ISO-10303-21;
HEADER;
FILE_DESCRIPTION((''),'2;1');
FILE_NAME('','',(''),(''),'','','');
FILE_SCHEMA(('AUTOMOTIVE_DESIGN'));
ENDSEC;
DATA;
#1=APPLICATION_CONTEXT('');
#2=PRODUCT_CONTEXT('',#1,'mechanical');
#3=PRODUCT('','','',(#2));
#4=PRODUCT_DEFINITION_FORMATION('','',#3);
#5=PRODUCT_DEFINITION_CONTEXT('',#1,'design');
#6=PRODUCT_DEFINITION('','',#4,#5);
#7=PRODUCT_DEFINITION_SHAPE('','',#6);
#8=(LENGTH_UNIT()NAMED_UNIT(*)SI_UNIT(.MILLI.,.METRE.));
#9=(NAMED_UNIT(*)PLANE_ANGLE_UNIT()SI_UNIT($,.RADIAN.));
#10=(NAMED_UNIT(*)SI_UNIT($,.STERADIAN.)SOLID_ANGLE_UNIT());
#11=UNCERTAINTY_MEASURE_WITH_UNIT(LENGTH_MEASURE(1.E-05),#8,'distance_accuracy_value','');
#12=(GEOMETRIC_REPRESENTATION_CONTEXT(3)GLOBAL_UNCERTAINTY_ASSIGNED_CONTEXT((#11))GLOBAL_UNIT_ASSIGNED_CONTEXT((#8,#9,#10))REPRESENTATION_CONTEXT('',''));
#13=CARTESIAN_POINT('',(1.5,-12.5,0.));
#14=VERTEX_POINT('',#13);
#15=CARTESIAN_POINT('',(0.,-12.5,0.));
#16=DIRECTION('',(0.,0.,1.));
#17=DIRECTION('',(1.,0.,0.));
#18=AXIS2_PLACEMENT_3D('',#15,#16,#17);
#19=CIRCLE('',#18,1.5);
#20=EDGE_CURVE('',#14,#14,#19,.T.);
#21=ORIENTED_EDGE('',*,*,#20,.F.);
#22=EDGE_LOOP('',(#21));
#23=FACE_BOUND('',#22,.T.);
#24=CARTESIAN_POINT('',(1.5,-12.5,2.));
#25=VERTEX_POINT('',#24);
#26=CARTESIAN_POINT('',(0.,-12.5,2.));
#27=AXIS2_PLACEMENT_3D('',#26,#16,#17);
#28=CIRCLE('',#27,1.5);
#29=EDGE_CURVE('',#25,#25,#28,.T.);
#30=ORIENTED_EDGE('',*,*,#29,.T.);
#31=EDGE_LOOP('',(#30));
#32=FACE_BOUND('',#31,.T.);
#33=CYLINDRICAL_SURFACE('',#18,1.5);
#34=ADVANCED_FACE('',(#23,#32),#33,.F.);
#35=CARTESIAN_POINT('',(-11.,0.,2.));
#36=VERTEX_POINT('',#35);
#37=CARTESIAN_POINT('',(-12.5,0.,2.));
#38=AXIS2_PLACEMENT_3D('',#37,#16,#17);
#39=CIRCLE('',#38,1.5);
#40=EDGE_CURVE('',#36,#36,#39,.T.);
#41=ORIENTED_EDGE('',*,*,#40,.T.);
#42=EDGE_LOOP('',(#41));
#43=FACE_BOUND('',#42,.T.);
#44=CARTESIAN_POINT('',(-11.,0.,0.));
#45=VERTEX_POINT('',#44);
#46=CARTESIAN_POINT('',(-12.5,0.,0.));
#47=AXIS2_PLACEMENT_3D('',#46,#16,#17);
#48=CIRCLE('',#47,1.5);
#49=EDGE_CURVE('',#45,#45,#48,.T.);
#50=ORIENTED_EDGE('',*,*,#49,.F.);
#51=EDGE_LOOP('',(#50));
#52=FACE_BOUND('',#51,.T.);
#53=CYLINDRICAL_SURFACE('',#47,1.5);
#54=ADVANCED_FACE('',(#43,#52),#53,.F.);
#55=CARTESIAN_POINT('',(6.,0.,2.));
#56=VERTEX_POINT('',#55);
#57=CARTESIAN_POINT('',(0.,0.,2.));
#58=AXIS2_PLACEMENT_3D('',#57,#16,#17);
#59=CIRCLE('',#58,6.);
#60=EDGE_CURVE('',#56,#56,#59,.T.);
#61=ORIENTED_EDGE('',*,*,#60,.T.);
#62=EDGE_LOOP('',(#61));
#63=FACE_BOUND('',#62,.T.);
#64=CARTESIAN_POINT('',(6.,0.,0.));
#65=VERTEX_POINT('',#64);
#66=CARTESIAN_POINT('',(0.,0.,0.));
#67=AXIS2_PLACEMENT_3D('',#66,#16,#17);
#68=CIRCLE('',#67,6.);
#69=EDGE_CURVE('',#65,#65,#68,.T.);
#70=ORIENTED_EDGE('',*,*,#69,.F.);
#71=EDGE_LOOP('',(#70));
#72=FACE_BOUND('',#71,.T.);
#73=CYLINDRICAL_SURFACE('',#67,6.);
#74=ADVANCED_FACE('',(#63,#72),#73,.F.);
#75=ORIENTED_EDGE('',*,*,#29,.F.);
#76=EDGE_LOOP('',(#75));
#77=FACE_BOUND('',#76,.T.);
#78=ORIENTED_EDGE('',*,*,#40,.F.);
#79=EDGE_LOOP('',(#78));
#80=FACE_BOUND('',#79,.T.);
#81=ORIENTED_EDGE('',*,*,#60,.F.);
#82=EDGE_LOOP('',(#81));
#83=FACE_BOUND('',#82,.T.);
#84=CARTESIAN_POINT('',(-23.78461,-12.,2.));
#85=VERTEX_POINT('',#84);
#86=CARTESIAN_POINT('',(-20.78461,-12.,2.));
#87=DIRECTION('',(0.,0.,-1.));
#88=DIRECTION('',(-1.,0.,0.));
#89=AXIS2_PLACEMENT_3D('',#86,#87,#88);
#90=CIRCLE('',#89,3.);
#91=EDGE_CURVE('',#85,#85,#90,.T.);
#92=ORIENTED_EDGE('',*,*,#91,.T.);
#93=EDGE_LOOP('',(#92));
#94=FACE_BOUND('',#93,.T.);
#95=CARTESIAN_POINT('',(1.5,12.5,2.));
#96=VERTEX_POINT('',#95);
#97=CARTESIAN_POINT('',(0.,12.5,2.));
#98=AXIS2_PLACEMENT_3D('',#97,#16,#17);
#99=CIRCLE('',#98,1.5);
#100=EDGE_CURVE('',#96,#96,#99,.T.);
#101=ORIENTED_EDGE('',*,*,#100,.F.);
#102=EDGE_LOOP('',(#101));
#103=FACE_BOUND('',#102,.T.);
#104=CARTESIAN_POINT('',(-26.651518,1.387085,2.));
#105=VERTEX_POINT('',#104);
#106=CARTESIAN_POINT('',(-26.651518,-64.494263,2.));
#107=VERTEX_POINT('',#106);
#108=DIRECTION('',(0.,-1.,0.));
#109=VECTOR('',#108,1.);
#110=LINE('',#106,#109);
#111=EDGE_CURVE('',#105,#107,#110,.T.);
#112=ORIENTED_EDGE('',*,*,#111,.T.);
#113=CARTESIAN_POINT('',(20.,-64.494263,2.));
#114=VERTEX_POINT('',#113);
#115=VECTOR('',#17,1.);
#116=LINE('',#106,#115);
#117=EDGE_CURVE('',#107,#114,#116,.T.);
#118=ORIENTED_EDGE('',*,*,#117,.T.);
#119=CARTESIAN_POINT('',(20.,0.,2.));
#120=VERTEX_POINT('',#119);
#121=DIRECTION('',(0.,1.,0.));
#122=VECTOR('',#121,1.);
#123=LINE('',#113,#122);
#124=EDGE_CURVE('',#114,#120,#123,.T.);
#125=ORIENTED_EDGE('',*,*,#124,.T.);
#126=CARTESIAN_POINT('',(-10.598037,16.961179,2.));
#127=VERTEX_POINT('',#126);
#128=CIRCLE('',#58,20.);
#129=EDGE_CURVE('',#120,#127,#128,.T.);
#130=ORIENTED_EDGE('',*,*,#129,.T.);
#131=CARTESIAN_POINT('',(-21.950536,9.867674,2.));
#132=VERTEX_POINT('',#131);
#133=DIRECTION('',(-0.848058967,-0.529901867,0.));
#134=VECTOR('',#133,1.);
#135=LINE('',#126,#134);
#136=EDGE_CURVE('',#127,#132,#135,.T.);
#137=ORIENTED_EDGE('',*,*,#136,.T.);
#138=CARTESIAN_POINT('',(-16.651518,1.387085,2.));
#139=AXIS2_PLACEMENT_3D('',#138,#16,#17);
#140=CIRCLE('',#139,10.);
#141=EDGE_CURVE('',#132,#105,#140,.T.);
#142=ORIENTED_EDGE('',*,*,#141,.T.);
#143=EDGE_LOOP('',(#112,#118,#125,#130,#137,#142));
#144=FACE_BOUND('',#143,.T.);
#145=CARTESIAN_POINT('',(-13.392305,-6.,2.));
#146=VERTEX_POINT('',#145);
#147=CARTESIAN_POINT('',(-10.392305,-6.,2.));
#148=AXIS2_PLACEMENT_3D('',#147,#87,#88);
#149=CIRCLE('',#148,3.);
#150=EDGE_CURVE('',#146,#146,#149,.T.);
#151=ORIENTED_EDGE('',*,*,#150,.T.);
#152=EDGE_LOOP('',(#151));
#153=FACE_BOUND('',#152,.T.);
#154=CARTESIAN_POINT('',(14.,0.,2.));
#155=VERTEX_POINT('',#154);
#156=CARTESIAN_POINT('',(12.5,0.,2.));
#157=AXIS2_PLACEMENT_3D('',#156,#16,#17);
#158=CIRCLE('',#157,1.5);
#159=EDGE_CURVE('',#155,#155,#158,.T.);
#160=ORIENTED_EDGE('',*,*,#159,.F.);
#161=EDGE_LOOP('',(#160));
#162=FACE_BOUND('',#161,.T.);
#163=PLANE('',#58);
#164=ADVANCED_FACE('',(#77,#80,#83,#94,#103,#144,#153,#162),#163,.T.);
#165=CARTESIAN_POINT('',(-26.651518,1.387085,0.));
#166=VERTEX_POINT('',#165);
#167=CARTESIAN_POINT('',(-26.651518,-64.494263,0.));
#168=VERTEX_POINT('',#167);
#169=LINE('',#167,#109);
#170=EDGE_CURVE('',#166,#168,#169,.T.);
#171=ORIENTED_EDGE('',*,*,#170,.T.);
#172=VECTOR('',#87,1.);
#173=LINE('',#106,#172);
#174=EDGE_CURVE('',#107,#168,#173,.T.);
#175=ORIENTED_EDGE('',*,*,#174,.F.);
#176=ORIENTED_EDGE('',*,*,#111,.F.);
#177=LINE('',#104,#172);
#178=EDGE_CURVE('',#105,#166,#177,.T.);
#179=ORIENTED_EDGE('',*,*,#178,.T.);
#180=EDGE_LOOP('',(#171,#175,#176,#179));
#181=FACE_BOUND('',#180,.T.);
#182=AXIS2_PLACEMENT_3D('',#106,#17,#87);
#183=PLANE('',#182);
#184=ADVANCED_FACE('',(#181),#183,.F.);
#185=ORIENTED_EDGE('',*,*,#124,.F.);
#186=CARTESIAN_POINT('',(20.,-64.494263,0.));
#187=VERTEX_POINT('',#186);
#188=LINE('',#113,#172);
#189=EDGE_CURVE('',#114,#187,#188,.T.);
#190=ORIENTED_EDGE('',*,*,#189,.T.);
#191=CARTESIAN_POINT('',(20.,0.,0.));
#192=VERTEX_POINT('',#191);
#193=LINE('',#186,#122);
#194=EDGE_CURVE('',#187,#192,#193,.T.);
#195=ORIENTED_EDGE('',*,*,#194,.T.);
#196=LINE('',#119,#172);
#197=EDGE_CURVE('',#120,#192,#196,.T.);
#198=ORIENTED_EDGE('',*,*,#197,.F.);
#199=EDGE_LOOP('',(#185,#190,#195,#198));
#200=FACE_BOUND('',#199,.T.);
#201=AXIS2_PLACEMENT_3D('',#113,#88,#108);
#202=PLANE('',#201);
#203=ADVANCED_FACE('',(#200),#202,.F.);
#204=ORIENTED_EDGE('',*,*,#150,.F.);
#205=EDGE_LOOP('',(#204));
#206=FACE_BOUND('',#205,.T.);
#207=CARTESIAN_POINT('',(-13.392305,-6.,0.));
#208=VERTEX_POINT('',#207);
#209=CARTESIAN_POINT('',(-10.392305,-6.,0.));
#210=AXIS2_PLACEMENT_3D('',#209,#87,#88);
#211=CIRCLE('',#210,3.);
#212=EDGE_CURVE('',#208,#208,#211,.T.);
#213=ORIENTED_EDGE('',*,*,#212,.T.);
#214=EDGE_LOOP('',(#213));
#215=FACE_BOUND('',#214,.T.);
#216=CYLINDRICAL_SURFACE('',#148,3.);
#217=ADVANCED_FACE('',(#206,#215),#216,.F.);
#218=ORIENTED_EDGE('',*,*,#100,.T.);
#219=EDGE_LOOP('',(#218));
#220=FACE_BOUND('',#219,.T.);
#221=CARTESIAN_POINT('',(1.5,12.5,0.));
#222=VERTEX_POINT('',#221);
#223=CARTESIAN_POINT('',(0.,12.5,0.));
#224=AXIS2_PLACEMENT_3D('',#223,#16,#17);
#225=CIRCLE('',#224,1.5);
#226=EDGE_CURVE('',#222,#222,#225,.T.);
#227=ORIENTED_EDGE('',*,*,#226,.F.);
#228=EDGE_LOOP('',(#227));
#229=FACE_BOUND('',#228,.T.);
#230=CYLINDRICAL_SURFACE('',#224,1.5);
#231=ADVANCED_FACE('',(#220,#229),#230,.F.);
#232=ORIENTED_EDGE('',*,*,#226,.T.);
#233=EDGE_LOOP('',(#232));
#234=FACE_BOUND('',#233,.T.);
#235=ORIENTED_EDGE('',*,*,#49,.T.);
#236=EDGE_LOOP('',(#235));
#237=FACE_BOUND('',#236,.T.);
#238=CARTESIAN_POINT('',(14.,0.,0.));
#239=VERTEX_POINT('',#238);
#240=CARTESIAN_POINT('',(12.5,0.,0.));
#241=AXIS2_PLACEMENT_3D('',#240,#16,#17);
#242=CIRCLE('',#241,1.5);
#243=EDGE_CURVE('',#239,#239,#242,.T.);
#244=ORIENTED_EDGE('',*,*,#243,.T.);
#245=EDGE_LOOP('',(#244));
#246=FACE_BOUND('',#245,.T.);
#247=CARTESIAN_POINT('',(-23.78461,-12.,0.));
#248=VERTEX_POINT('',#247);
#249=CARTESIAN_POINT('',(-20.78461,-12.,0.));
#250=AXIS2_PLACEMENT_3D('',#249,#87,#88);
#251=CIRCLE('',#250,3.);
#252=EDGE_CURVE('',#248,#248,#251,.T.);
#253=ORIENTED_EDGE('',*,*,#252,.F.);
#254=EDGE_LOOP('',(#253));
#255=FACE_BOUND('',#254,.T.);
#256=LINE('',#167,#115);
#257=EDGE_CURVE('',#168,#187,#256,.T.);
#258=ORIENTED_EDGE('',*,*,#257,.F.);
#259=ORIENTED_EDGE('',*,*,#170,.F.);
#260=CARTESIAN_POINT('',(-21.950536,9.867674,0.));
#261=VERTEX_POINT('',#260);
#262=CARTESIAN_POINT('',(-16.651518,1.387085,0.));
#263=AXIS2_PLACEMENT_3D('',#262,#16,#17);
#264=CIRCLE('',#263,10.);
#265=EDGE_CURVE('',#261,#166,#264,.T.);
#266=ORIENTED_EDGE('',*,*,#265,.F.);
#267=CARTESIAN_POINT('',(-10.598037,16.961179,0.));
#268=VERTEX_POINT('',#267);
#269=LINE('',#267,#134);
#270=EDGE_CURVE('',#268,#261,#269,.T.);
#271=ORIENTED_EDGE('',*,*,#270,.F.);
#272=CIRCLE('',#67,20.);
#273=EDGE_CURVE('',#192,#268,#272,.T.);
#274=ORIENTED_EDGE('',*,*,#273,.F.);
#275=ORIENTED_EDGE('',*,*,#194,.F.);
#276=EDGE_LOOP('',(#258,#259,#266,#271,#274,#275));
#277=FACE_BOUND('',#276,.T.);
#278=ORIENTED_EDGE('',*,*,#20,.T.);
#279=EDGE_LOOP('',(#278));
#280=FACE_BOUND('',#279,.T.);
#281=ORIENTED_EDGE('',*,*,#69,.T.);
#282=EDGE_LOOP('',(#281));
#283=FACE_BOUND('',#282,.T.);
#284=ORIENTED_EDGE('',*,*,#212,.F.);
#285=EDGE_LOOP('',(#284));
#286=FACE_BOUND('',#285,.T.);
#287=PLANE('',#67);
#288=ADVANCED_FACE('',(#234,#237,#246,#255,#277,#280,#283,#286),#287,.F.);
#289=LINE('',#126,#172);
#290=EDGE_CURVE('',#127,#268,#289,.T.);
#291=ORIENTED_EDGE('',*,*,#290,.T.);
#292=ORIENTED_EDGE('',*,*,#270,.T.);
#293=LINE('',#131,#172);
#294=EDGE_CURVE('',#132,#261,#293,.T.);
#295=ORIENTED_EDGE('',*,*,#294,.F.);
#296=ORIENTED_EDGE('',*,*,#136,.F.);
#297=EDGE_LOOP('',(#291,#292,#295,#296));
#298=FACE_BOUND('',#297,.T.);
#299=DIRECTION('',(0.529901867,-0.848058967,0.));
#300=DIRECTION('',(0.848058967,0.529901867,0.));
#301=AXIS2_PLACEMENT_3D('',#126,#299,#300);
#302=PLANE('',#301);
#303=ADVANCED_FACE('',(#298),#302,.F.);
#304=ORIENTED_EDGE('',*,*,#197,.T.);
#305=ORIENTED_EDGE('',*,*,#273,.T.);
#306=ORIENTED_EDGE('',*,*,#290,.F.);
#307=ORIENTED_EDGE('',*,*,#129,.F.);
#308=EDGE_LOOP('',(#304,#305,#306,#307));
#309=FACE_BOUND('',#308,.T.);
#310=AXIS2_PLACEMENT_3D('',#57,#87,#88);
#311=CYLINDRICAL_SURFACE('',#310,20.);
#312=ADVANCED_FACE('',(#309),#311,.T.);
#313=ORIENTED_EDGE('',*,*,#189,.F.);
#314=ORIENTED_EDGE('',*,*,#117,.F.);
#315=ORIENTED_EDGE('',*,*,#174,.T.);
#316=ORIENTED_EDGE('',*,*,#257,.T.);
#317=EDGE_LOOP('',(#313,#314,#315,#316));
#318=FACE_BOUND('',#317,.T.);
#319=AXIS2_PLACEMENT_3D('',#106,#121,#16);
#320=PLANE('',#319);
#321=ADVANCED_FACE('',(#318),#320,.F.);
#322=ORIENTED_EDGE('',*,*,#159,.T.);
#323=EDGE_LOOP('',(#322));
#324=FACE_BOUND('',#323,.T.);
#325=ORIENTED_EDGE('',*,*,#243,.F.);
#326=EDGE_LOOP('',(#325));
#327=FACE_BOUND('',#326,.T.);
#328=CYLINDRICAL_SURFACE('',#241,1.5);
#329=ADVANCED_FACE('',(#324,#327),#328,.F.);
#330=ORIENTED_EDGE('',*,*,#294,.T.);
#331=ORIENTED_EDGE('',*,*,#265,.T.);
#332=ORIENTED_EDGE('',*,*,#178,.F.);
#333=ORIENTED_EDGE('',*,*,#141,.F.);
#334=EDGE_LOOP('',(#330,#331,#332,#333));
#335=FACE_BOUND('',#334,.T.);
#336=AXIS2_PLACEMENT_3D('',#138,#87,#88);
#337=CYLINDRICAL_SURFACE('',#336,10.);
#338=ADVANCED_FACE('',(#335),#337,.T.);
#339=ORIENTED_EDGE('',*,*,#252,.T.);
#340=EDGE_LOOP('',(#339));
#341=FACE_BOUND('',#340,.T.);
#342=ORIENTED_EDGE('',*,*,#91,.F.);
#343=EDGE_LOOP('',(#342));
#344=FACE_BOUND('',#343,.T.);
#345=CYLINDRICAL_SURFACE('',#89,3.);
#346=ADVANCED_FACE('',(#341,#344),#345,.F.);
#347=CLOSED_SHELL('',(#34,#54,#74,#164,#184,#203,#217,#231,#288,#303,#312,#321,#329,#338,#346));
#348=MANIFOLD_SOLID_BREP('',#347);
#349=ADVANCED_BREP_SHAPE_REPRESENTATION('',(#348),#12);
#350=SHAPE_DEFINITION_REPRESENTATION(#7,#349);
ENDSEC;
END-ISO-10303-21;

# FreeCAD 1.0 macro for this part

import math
import FreeCAD as App
import Part
import Sketcher

doc = App.newDocument("Part")
body = doc.addObject("PartDesign::Body", "Body")

# Sketch on XY plane
sketch1 = body.newObject("Sketcher::SketchObject", "Sketch")
sketch1.AttachmentSupport = (doc.getObject("XY_Plane"), [""])
sketch1.MapMode = "FlatFace"
sketch1.addGeometry([
    Part.LineSegment(App.Vector(-10.598037, 16.961179, 0), App.Vector(-21.950536, 9.867674, 0)),  # 0
    Part.ArcOfCircle(Part.Circle(App.Vector(-16.651518, 1.387085, 0), App.Vector(0, 0, 1), 10), math.radians(121.998825), math.radians(180)),  # 1
    Part.LineSegment(App.Vector(-26.651518, 1.387085, 0), App.Vector(-26.651518, -64.494263, 0)),  # 2
    Part.LineSegment(App.Vector(-26.651518, -64.494263, 0), App.Vector(20, -64.494263, 0)),  # 3
    Part.LineSegment(App.Vector(20, -64.494263, 0), App.Vector(20, 0, 0)),  # 4
    Part.ArcOfCircle(Part.Circle(App.Vector(0, 0, 0), App.Vector(0, 0, 1), 20), math.radians(0), math.radians(121.998825)),  # 5
], False)
sketch1.addConstraint([
    Sketcher.Constraint("Tangent", 0, 2, 1, 1),
    Sketcher.Constraint("Tangent", 1, 2, 2, 1),
    Sketcher.Constraint("Coincident", 2, 2, 3, 1),
    Sketcher.Constraint("Coincident", 3, 2, 4, 1),
    Sketcher.Constraint("Tangent", 4, 2, 5, 1),
    Sketcher.Constraint("Tangent", 5, 2, 0, 1),
    Sketcher.Constraint("Vertical", 2),
    Sketcher.Constraint("Horizontal", 3),
    Sketcher.Constraint("Vertical", 4),
    Sketcher.Constraint("Coincident", 5, 3, -1, 1),
    Sketcher.Constraint("Radius", 1, 10.0),
    Sketcher.Constraint("Radius", 5, 20.0),
    Sketcher.Constraint("DistanceX", 0, 2, 5, 2, 11.352499),
    Sketcher.Constraint("Distance", 0, 13.38645),
    Sketcher.Constraint("DistanceY", 2, 2, 2, 1, 65.881348),
])
pad1 = body.newObject("PartDesign::Pad", "Pad")
pad1.Profile = sketch1
pad1.Length = 2

# Sketch on XY plane
sketch2 = body.newObject("Sketcher::SketchObject", "Sketch001")
sketch2.AttachmentSupport = (doc.getObject("XY_Plane"), [""])
sketch2.MapMode = "FlatFace"
sketch2.AttachmentOffset = App.Placement(App.Vector(0, 0, 2), App.Rotation())
sketch2.addGeometry([
    Part.Circle(App.Vector(0, 0, 0), App.Vector(0, 0, 1), 6),  # 0
    Part.Circle(App.Vector(12.5, 0, 0), App.Vector(0, 0, 1), 1.5),  # 1
    Part.Circle(App.Vector(0, -12.5, 0), App.Vector(0, 0, 1), 1.5),  # 2
    Part.Circle(App.Vector(-12.5, 0, 0), App.Vector(0, 0, 1), 1.5),  # 3
    Part.Circle(App.Vector(0, 12.5, 0), App.Vector(0, 0, 1), 1.5),  # 4
], False)
sketch2.addConstraint([
    Sketcher.Constraint("Coincident", 0, 3, -1, 1),
    Sketcher.Constraint("Equal", 1, 2),
    Sketcher.Constraint("Equal", 2, 3),
    Sketcher.Constraint("Equal", 3, 4),
    Sketcher.Constraint("Symmetric", 1, 3, 3, 3, -1, 1),
    Sketcher.Constraint("Symmetric", 2, 3, 4, 3, -1, 1),
    Sketcher.Constraint("PointOnObject", 1, 3, -1),
    Sketcher.Constraint("PointOnObject", 2, 3, -2),
    Sketcher.Constraint("Diameter", 0, 12.0),
    Sketcher.Constraint("Diameter", 1, 3.0),
    Sketcher.Constraint("DistanceX", 3, 3, 1, 3, 25.0),
    Sketcher.Constraint("DistanceY", 2, 3, 4, 3, 25.0),
])
pocket1 = body.newObject("PartDesign::Pocket", "Pocket")
pocket1.Profile = sketch2
pocket1.Length = 2

# Sketch on XY plane
sketch3 = body.newObject("Sketcher::SketchObject", "Sketch002")
sketch3.AttachmentSupport = (doc.getObject("XY_Plane"), [""])
sketch3.MapMode = "FlatFace"
sketch3.addGeometry([
    Part.Circle(App.Vector(-10.392305, -6, 0), App.Vector(0, 0, 1), 3),
    Part.Circle(App.Vector(-20.78461, -12, 0), App.Vector(0, 0, 1), 3),
], False)
sketch3.addConstraint([
    Sketcher.Constraint("Equal", 0, 1),
    Sketcher.Constraint("Diameter", 0, 6.0),
    Sketcher.Constraint("DistanceY", 0, 3, -1, 1, 6.0),
    Sketcher.Constraint("DistanceY", 1, 3, -1, 1, 12.0),
    Sketcher.Constraint("DistanceX", 1, 3, -1, 1, 20.78461),
    Sketcher.Constraint("DistanceX", 0, 3, -1, 1, 10.392305),
])
pocket2 = body.newObject("PartDesign::Pocket", "Pocket001")
pocket2.Profile = sketch3
pocket2.Length = 2
pocket2.Reversed = True

doc.recompute()
